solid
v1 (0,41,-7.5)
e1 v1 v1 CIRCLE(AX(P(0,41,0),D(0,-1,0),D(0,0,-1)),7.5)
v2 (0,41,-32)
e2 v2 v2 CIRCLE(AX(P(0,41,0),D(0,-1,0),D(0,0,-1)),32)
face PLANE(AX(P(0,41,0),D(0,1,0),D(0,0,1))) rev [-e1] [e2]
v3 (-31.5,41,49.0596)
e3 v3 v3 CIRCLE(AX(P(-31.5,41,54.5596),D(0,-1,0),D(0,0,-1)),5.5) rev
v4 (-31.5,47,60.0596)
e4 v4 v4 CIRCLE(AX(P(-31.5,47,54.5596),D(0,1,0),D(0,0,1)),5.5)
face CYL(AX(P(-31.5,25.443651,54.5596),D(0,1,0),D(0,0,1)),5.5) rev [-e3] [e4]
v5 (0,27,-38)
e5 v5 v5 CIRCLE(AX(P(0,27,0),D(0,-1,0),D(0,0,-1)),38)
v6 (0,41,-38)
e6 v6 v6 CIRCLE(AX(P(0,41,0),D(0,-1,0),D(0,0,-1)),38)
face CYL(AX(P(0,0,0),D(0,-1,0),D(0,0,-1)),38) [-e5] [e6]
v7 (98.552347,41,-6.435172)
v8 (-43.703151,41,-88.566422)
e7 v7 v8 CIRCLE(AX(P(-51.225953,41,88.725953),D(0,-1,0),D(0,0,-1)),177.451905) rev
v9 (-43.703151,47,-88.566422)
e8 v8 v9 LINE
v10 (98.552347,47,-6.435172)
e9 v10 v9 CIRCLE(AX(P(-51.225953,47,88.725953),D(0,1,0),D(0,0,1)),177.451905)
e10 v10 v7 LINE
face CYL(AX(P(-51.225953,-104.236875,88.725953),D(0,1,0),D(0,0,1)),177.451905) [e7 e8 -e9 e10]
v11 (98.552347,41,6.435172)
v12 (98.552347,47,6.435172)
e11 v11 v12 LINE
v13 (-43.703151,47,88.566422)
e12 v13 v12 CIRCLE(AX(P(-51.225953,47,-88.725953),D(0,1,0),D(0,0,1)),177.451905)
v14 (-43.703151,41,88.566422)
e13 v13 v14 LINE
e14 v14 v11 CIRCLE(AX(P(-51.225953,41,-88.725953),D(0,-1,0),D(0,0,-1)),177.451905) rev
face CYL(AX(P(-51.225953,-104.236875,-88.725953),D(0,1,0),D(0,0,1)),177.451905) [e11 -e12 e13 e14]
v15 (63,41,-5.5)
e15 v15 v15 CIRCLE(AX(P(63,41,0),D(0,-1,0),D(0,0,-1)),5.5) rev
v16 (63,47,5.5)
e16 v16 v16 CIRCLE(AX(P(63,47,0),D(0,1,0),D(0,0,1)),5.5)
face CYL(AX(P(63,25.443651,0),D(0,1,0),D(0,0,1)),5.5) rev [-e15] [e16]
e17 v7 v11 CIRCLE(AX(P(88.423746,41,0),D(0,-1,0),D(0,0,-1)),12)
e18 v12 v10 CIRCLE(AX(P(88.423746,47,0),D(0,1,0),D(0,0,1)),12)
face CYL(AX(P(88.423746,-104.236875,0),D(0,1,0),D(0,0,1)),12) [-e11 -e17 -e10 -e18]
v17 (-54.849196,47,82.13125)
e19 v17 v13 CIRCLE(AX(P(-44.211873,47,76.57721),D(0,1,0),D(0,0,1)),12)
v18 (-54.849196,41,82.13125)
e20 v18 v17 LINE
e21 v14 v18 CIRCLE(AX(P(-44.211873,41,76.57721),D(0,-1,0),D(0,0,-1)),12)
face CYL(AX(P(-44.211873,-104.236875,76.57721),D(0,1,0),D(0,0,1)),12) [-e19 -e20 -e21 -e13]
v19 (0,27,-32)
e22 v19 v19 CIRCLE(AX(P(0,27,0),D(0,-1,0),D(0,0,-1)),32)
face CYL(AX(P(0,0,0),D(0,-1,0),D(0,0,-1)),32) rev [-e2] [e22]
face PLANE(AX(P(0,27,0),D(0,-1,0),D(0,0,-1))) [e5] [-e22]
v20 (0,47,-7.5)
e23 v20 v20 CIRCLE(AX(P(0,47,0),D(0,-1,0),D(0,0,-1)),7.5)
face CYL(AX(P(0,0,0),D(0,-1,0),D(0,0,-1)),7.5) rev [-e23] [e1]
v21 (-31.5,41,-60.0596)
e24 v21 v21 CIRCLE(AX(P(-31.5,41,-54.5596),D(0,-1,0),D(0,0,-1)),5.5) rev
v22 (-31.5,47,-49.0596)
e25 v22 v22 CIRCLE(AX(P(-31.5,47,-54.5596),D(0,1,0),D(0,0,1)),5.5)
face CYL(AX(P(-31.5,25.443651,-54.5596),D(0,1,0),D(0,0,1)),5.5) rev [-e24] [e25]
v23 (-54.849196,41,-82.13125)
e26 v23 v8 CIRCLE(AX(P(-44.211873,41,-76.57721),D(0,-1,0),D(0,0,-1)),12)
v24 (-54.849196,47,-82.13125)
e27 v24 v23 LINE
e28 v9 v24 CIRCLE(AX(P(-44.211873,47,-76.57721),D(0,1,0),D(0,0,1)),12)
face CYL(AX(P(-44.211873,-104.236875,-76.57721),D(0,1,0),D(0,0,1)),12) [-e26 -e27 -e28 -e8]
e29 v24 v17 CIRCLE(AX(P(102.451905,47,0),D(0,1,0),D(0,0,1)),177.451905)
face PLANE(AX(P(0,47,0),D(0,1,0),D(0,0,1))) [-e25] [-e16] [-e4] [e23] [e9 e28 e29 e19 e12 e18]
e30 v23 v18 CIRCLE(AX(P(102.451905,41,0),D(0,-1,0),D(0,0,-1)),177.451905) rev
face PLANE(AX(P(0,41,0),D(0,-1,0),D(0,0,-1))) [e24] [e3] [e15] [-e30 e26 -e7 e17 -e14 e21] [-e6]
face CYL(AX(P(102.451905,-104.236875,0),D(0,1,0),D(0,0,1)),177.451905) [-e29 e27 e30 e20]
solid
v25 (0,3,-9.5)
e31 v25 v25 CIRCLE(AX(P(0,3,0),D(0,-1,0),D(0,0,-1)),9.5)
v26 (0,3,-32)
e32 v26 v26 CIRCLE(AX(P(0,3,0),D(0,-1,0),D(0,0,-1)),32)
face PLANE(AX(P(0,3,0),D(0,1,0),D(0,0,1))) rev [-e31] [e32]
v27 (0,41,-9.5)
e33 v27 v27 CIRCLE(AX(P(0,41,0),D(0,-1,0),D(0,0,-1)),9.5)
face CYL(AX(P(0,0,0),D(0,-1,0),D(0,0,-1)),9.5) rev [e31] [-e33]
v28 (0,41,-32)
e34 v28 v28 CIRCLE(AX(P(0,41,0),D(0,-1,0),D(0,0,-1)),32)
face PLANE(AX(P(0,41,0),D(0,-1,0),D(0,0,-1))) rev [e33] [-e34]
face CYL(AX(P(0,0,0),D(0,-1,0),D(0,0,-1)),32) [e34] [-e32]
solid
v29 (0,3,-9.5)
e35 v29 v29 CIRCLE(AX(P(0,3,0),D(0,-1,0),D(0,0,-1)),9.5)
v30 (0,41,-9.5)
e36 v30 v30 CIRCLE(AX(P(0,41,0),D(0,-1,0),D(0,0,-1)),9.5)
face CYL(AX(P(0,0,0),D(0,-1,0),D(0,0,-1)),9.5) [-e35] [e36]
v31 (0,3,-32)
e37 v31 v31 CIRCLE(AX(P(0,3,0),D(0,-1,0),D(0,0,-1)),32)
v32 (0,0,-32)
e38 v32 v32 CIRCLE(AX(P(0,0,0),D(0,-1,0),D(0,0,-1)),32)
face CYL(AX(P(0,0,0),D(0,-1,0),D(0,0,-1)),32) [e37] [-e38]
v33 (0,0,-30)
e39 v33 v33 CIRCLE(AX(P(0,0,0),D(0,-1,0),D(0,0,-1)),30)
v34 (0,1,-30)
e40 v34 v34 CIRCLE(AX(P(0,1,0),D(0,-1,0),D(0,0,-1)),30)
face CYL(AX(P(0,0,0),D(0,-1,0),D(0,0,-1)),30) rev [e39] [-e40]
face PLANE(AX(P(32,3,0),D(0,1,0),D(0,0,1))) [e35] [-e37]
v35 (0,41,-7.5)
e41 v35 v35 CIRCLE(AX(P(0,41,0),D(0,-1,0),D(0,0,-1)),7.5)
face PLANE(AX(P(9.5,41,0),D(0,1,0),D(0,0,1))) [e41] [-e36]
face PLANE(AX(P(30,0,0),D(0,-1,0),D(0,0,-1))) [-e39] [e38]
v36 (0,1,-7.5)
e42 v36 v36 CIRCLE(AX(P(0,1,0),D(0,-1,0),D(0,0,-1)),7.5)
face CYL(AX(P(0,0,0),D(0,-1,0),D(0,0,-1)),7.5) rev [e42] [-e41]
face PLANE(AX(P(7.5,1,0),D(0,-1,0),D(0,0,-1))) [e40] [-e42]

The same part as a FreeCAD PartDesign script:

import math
import FreeCAD as App
import Part
import Sketcher
from FreeCAD import Vector
Q = App.Units.Quantity


def edges_at(feature, points):
    """Names of the edges that pass closest to the given points."""
    edges = feature.Shape.Edges
    near = lambda p: min(range(len(edges)), key=lambda i: edges[i].distToShape(Part.Vertex(*p))[0])
    return sorted({f"Edge{near(p) + 1}" for p in points})

doc = App.newDocument("Part")
params = doc.addObject("Spreadsheet::Sheet", "Params")
for row, (alias, value) in enumerate([
    ("sketch1_width", "2 mm"),
    ("sketch1_height", "3 mm"),
    ("sketch1_height2", "38 mm"),
    ("sketch1_height3", "40 mm"),
    ("sketch1_width2", "22.5 mm"),
    ("revolution_angle", "360 deg"),
    ("sketch2_height", "38 mm"),
    ("sketch2_width", "22.5 mm"),
    ("revolution2_angle", "360 deg"),
    ("sketch3_width", "6 mm"),
    ("sketch3_width2", "37 mm"),
    ("sketch3_height", "14 mm"),
    ("sketch3_width3", "67.5 mm"),
    ("revolution3_angle", "360 deg"),
    ("sketch4_radius", "75 mm"),
    ("pad1_length", "6 mm"),
    ("sketch5_diameter", "11 mm"),
    ("pocket1_length", "6 mm"),
    ("fillet_radius", "12 mm"),
], start=1):
    params.set(f"A{row}", alias)
    params.set(f"B{row}", "=" + value)
    params.setAlias(f"B{row}", alias)

body = doc.addObject("PartDesign::Body", "Body")

sketch1 = body.newObject("Sketcher::SketchObject", "Sketch")
sketch1.AttachmentSupport = (doc.getObject("XY_Plane"), [""])
sketch1.MapMode = "FlatFace"
sketch1.addGeometry([
    Part.LineSegment(Vector(30, 0, 0), Vector(32, 0, 0)),
    Part.LineSegment(Vector(32, 0, 0), Vector(32, 3, 0)),
    Part.LineSegment(Vector(32, 3, 0), Vector(9.5, 3, 0)),
    Part.LineSegment(Vector(9.5, 3, 0), Vector(9.5, 41, 0)),
    Part.LineSegment(Vector(9.5, 41, 0), Vector(7.5, 41, 0)),
    Part.LineSegment(Vector(7.5, 41, 0), Vector(7.5, 1, 0)),
    Part.LineSegment(Vector(7.5, 1, 0), Vector(30, 1, 0)),
    Part.LineSegment(Vector(30, 1, 0), Vector(30, 0, 0)),
], False)
sketch1.addConstraint([
    Sketcher.Constraint("Coincident", 0, 2, 1, 1),
    Sketcher.Constraint("Coincident", 1, 2, 2, 1),
    Sketcher.Constraint("Coincident", 2, 2, 3, 1),
    Sketcher.Constraint("Coincident", 3, 2, 4, 1),
    Sketcher.Constraint("Coincident", 4, 2, 5, 1),
    Sketcher.Constraint("Coincident", 5, 2, 6, 1),
    Sketcher.Constraint("Coincident", 6, 2, 7, 1),
    Sketcher.Constraint("Coincident", 7, 2, 0, 1),
    Sketcher.Constraint("Horizontal", 0),
    Sketcher.Constraint("Vertical", 1),
    Sketcher.Constraint("Horizontal", 2),
    Sketcher.Constraint("Vertical", 3),
    Sketcher.Constraint("Horizontal", 4),
    Sketcher.Constraint("Vertical", 5),
    Sketcher.Constraint("Horizontal", 6),
    Sketcher.Constraint("Vertical", 7),
    Sketcher.Constraint("PointOnObject", 0, 2, -1),
    Sketcher.Constraint("Equal", 0, 4),
    Sketcher.Constraint("DistanceX", 0, 1, 0, 2, Q("2 mm")),
    Sketcher.Constraint("DistanceY", 1, 1, 1, 2, Q("3 mm")),
    Sketcher.Constraint("DistanceY", 3, 1, 3, 2, Q("38 mm")),
    Sketcher.Constraint("DistanceY", 5, 2, 5, 1, Q("40 mm")),
    Sketcher.Constraint("DistanceX", 2, 2, 2, 1, Q("22.5 mm")),
    Sketcher.Constraint("DistanceX", -1, 1, 0, 2, Q("32 mm")),
])
sketch1.setExpression("Constraints[18]", "Params.sketch1_width")
sketch1.setExpression("Constraints[19]", "Params.sketch1_height")
sketch1.setExpression("Constraints[20]", "Params.sketch1_height2")
sketch1.setExpression("Constraints[21]", "Params.sketch1_height3")
sketch1.setExpression("Constraints[22]", "Params.sketch1_width2")
revolution = body.newObject("PartDesign::Revolution", "Revolution")
revolution.Profile = sketch1
revolution.ReferenceAxis = (sketch1, ["V_Axis"])
revolution.setExpression("Angle", "Params.revolution_angle")
body2 = doc.addObject("PartDesign::Body", "Body001")

sketch2 = body2.newObject("Sketcher::SketchObject", "Sketch001")
sketch2.AttachmentSupport = (doc.getObject("XY_Plane001"), [""])
sketch2.MapMode = "FlatFace"
sketch2.addGeometry([
    Part.LineSegment(Vector(10, 41, 0), Vector(10, 3, 0)),
    Part.LineSegment(Vector(10, 3, 0), Vector(32, 3, 0)),
    Part.LineSegment(Vector(32, 3, 0), Vector(32, 41, 0)),
    Part.LineSegment(Vector(32, 41, 0), Vector(10, 41, 0)),
], False)
sketch2.addConstraint([
    Sketcher.Constraint("Coincident", 0, 2, 1, 1),
    Sketcher.Constraint("Coincident", 1, 2, 2, 1),
    Sketcher.Constraint("Coincident", 2, 2, 3, 1),
    Sketcher.Constraint("Coincident", 3, 2, 0, 1),
    Sketcher.Constraint("Vertical", 0),
    Sketcher.Constraint("Horizontal", 1),
    Sketcher.Constraint("Vertical", 2),
    Sketcher.Constraint("Horizontal", 3),
    Sketcher.Constraint("DistanceY", 0, 2, 0, 1, Q("38 mm")),
    Sketcher.Constraint("DistanceX", 1, 1, 1, 2, Q("22.5 mm")),
    Sketcher.Constraint("DistanceY", -1, 1, 0, 2, Q("3 mm")),
    Sketcher.Constraint("DistanceX", -1, 1, 1, 2, Q("32 mm")),
])
sketch2.setExpression("Constraints[8]", "Params.sketch2_height")
sketch2.setExpression("Constraints[9]", "Params.sketch2_width")
revolution2 = body2.newObject("PartDesign::Revolution", "Revolution001")
revolution2.Profile = sketch2
revolution2.ReferenceAxis = (sketch2, ["V_Axis"])
revolution2.setExpression("Angle", "Params.revolution2_angle")
body3 = doc.addObject("PartDesign::Body", "Body002")

sketch3 = body3.newObject("Sketcher::SketchObject", "Sketch002")
sketch3.AttachmentSupport = (doc.getObject("XY_Plane002"), [""])
sketch3.MapMode = "FlatFace"
sketch3.addGeometry([
    Part.LineSegment(Vector(32, 41, 0), Vector(32, 27, 0)),
    Part.LineSegment(Vector(32, 27, 0), Vector(38, 27, 0)),
    Part.LineSegment(Vector(38, 27, 0), Vector(38, 41, 0)),
    Part.LineSegment(Vector(38, 41, 0), Vector(75, 41, 0)),
    Part.LineSegment(Vector(75, 41, 0), Vector(75, 47, 0)),
    Part.LineSegment(Vector(75, 47, 0), Vector(8, 47, 0)),
    Part.LineSegment(Vector(8, 47, 0), Vector(8, 41, 0)),
    Part.LineSegment(Vector(8, 41, 0), Vector(32, 41, 0)),
], False)
sketch3.addConstraint([
    Sketcher.Constraint("Coincident", 0, 2, 1, 1),
    Sketcher.Constraint("Coincident", 1, 2, 2, 1),
    Sketcher.Constraint("Coincident", 2, 2, 3, 1),
    Sketcher.Constraint("Coincident", 3, 2, 4, 1),
    Sketcher.Constraint("Coincident", 4, 2, 5, 1),
    Sketcher.Constraint("Coincident", 5, 2, 6, 1),
    Sketcher.Constraint("Coincident", 6, 2, 7, 1),
    Sketcher.Constraint("Coincident", 7, 2, 0, 1),
    Sketcher.Constraint("Vertical", 0),
    Sketcher.Constraint("Horizontal", 1),
    Sketcher.Constraint("Vertical", 2),
    Sketcher.Constraint("Horizontal", 3),
    Sketcher.Constraint("Vertical", 4),
    Sketcher.Constraint("Horizontal", 5),
    Sketcher.Constraint("Vertical", 6),
    Sketcher.Constraint("Horizontal", 7),
    Sketcher.Constraint("Horizontal", 3, 2, 6, 2),
    Sketcher.Constraint("Equal", 1, 4),
    Sketcher.Constraint("DistanceX", 1, 1, 1, 2, Q("6 mm")),
    Sketcher.Constraint("DistanceX", 3, 1, 3, 2, Q("37 mm")),
    Sketcher.Constraint("DistanceY", 0, 2, 0, 1, Q("14 mm")),
    Sketcher.Constraint("DistanceX", 5, 2, 5, 1, Q("67.5 mm")),
    Sketcher.Constraint("DistanceX", -1, 1, 0, 2, Q("32 mm")),
    Sketcher.Constraint("DistanceY", -1, 1, 0, 2, Q("27 mm")),
])
sketch3.setExpression("Constraints[18]", "Params.sketch3_width")
sketch3.setExpression("Constraints[19]", "Params.sketch3_width2")
sketch3.setExpression("Constraints[20]", "Params.sketch3_height")
sketch3.setExpression("Constraints[21]", "Params.sketch3_width3")
revolution3 = body3.newObject("PartDesign::Revolution", "Revolution002")
revolution3.Profile = sketch3
revolution3.ReferenceAxis = (sketch3, ["V_Axis"])
revolution3.setExpression("Angle", "Params.revolution3_angle")

sketch4 = body3.newObject("Sketcher::SketchObject", "Sketch003")
sketch4.AttachmentSupport = (doc.getObject("XZ_Plane002"), [""])
sketch4.MapMode = "FlatFace"
sketch4.AttachmentOffset = App.Placement(Vector(0, 0, -47), App.Rotation())
sketch4.addGeometry([
    Part.ArcOfCircle(Part.Circle(Vector(0, 0, 0), Vector(0, 0, 1), 75), math.radians(-60), math.radians(60)),
    Part.ArcOfCircle(Part.Circle(Vector(-51, -89, 0), Vector(0, 0, 1), 177), math.radians(30), math.radians(60)),
    Part.ArcOfCircle(Part.Circle(Vector(-51, 89, 0), Vector(0, 0, 1), 177), math.radians(-60), math.radians(-30)),
    Part.ArcOfCircle(Part.Circle(Vector(0, 0, 0), Vector(0, 0, 1), 75), math.radians(-180), math.radians(-60)),
    Part.ArcOfCircle(Part.Circle(Vector(-51, 89, 0), Vector(0, 0, 1), 177), math.radians(-90), math.radians(-60)),
    Part.ArcOfCircle(Part.Circle(Vector(102, 0, 0), Vector(0, 0, 1), 177), math.radians(-180), math.radians(-150)),
    Part.ArcOfCircle(Part.Circle(Vector(-51, -89, 0), Vector(0, 0, 1), 177), math.radians(60), math.radians(90)),
    Part.ArcOfCircle(Part.Circle(Vector(0, 0, 0), Vector(0, 0, 1), 75), math.radians(60), math.radians(180)),
    Part.ArcOfCircle(Part.Circle(Vector(102, 0, 0), Vector(0, 0, 1), 177), math.radians(150), math.radians(180)),
], False)
sketch4.addConstraint([
    Sketcher.Constraint("Tangent", 0, 2, 1, 2),
    Sketcher.Constraint("Coincident", 1, 1, 2, 2),
    Sketcher.Constraint("Tangent", 2, 1, 0, 1),
    Sketcher.Constraint("Tangent", 3, 2, 4, 2),
    Sketcher.Constraint("Coincident", 4, 1, 5, 2),
    Sketcher.Constraint("Tangent", 5, 1, 3, 1),
    Sketcher.Constraint("Tangent", 6, 1, 7, 1),
    Sketcher.Constraint("Tangent", 7, 2, 8, 2),
    Sketcher.Constraint("Coincident", 8, 1, 6, 2),
    Sketcher.Constraint("Coincident", 0, 3, -1, 1),
    Sketcher.Constraint("Coincident", 3, 3, -1, 1),
    Sketcher.Constraint("Coincident", 7, 3, -1, 1),
    Sketcher.Constraint("Coincident", 4, 3, 2, 3),
    Sketcher.Constraint("Coincident", 6, 3, 1, 3),
    Sketcher.Constraint("Coincident", 8, 3, 5, 3),
    Sketcher.Constraint("Coincident", 1, 1, 5, 3),
    Sketcher.Constraint("Coincident", 4, 1, 1, 3),
    Sketcher.Constraint("Equal", 1, 2),
    Sketcher.Constraint("Equal", 0, 3),
    Sketcher.Constraint("Equal", 5, 6),
    Sketcher.Constraint("PointOnObject", 5, 3, -1),
    Sketcher.Constraint("Radius", 0, Q("75 mm")),
])
sketch4.setExpression("Constraints[21]", "Params.sketch4_radius")
pad1 = body3.newObject("PartDesign::Pad", "Pad")
pad1.Profile = sketch4
pad1.setExpression("Length", "Params.pad1_length")

sketch5 = body3.newObject("Sketcher::SketchObject", "Sketch004")
sketch5.AttachmentSupport = (doc.getObject("XZ_Plane002"), [""])
sketch5.MapMode = "FlatFace"
sketch5.AttachmentOffset = App.Placement(Vector(0, 0, -47), App.Rotation())
sketch5.addGeometry([
    Part.Circle(Vector(-32, -55, 0), Vector(0, 0, 1), 6),
    Part.Circle(Vector(-32, 55, 0), Vector(0, 0, 1), 6),
    Part.Circle(Vector(63, 0, 0), Vector(0, 0, 1), 6),
], False)
sketch5.addConstraint([
    Sketcher.Constraint("Equal", 0, 1),
    Sketcher.Constraint("Equal", 1, 2),
    Sketcher.Constraint("Symmetric", 0, 3, 1, 3, -1),
    Sketcher.Constraint("PointOnObject", 2, 3, -1),
    Sketcher.Constraint("Diameter", 0, Q("11 mm")),
    Sketcher.Constraint("DistanceX", -1, 1, 2, 3, Q("63 mm")),
    Sketcher.Constraint("DistanceX", 0, 3, -1, 1, Q("31.5 mm")),
    Sketcher.Constraint("DistanceY", 0, 3, -1, 1, Q("54.5596 mm")),
])
sketch5.setExpression("Constraints[4]", "Params.sketch5_diameter")
pocket1 = body3.newObject("PartDesign::Pocket", "Pocket")
pocket1.Profile = sketch5
pocket1.setExpression("Length", "Params.pocket1_length")
pocket1.Reversed = True
doc.recompute()

fillet = body3.newObject("PartDesign::Fillet", "Fillet")
fillet.Base = (pocket1, edges_at(pocket1, [(-51.226, 44, -88.726), (-51.226, 44, 88.726), (102.452, 44, 0)]))
fillet.setExpression("Radius", "Params.fillet_radius")

doc.recompute()
